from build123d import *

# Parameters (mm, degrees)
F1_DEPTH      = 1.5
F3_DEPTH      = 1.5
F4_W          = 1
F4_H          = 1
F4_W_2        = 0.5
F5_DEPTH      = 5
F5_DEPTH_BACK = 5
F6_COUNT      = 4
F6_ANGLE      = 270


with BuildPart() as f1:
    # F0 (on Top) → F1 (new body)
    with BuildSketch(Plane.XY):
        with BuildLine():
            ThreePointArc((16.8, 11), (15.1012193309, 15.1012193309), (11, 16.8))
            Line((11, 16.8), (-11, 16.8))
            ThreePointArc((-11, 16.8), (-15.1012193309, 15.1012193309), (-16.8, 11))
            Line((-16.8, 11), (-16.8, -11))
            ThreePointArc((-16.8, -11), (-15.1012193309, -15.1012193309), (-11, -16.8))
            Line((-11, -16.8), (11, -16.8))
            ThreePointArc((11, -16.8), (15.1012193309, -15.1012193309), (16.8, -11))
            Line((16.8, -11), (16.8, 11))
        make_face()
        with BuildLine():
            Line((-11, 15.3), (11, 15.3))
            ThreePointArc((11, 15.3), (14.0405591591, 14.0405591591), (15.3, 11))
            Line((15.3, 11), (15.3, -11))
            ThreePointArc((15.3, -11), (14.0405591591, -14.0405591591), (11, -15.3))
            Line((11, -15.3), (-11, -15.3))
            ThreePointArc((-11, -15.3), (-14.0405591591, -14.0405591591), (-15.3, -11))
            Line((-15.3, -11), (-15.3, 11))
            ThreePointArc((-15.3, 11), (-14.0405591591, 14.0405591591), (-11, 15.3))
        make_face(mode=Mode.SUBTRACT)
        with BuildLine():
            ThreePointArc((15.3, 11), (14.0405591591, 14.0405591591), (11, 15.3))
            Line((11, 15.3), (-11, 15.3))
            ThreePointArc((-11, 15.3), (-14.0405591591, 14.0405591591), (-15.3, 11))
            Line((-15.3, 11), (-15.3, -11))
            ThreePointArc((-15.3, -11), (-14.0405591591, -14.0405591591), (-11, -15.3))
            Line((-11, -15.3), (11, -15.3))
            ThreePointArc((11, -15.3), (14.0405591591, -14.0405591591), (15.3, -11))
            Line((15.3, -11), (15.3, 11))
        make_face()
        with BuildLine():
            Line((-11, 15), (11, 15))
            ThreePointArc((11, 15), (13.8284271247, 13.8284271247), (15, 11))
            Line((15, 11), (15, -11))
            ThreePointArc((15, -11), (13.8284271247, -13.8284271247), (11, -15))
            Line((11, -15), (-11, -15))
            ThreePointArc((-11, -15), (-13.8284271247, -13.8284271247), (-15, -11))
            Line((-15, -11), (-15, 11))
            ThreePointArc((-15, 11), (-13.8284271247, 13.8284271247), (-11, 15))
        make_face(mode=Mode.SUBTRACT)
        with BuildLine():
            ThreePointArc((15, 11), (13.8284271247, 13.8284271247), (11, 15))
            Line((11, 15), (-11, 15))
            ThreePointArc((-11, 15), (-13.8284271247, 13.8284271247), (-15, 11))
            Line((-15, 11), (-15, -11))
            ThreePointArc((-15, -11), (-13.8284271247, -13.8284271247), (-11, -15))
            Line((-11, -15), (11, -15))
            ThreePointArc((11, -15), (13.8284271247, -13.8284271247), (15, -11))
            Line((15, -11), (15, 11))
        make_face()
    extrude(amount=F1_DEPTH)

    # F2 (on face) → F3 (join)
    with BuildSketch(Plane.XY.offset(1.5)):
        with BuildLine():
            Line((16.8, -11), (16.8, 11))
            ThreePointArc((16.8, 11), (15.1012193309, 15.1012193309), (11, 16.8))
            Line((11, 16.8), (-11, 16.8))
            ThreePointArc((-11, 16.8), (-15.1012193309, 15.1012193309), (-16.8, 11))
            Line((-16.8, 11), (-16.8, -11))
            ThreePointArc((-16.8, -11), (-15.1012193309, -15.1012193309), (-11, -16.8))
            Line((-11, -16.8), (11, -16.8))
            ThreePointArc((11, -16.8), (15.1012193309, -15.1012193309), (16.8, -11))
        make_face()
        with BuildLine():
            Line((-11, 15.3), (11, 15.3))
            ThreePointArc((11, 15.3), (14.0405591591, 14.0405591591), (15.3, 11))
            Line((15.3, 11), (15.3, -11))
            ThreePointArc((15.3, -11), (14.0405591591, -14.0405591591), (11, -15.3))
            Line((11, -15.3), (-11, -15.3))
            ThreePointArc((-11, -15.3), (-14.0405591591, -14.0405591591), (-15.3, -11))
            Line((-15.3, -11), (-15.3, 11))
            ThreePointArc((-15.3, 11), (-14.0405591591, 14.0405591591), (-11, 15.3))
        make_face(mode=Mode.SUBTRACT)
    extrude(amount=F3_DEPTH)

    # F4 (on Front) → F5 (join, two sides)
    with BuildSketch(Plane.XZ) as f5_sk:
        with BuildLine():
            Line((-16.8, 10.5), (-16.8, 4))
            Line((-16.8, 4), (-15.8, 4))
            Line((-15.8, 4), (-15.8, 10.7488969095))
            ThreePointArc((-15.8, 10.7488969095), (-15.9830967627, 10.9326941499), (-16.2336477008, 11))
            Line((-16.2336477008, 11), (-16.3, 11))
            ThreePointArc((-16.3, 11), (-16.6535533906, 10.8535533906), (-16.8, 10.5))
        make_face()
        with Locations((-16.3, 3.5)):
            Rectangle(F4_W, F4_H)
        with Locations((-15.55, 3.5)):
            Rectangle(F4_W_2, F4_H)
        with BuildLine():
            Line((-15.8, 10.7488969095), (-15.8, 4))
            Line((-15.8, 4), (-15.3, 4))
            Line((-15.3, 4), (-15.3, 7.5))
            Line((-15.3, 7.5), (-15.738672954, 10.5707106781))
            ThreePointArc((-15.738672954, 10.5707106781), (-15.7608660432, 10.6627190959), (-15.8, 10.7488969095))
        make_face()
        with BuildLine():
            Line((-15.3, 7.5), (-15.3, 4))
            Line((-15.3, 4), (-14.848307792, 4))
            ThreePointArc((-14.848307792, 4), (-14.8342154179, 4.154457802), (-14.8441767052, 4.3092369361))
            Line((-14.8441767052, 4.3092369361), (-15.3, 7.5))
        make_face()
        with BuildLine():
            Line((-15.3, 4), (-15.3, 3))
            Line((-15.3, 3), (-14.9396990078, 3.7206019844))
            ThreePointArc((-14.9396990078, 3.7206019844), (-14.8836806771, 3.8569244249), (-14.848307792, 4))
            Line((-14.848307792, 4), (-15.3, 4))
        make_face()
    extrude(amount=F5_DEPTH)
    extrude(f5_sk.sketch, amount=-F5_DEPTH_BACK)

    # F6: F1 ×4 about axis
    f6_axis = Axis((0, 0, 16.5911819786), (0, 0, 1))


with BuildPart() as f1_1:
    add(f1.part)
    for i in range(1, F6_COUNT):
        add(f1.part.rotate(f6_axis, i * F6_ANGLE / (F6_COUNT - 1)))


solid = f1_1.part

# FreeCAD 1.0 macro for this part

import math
import FreeCAD as App
import Part
import Sketcher

V = App.Vector
Q = App.Units.Quantity

doc = App.newDocument("Part")
body = doc.addObject("PartDesign::Body", "Body")

sketch1 = doc.addObject("Sketcher::SketchObject", "Sketch")
body.addObject(sketch1)
sketch1.AttachmentSupport = (doc.XY_Plane, [""])
sketch1.MapMode = "FlatFace"
sketch1.addGeometry([
    Part.ArcOfCircle(Part.Circle(V(11, 11, 0), V(0, 0, 1), 5.8), math.radians(0), math.radians(90)),
    Part.LineSegment(V(11, 16.8, 0), V(-11, 16.8, 0)),
    Part.ArcOfCircle(Part.Circle(V(-11, 11, 0), V(0, 0, 1), 5.8), math.radians(90), math.radians(180)),
    Part.LineSegment(V(-16.8, 11, 0), V(-16.8, -11, 0)),
    Part.ArcOfCircle(Part.Circle(V(-11, -11, 0), V(0, 0, 1), 5.8), math.radians(180), math.radians(270)),
    Part.LineSegment(V(-11, -16.8, 0), V(11, -16.8, 0)),
    Part.ArcOfCircle(Part.Circle(V(11, -11, 0), V(0, 0, 1), 5.8), math.radians(-90), math.radians(0)),
    Part.LineSegment(V(16.8, -11, 0), V(16.8, 11, 0)),
], False)
sketch1.addConstraint([
    Sketcher.Constraint("Tangent", 0, 2, 1, 1),
    Sketcher.Constraint("Tangent", 1, 2, 2, 1),
    Sketcher.Constraint("Tangent", 2, 2, 3, 1),
    Sketcher.Constraint("Tangent", 3, 2, 4, 1),
    Sketcher.Constraint("Tangent", 4, 2, 5, 1),
    Sketcher.Constraint("Tangent", 5, 2, 6, 1),
    Sketcher.Constraint("Tangent", 6, 2, 7, 1),
    Sketcher.Constraint("Tangent", 7, 2, 0, 1),
    Sketcher.Constraint("Horizontal", 1),
    Sketcher.Constraint("Vertical", 3),
    Sketcher.Constraint("Horizontal", 5),
    Sketcher.Constraint("Vertical", 7),
    Sketcher.Constraint("Equal", 0, 2),
    Sketcher.Constraint("Equal", 2, 4),
    Sketcher.Constraint("Equal", 4, 6),
    Sketcher.Constraint("Symmetric", 0, 3, 4, 3, -1, 1),
    Sketcher.Constraint("Equal", 5, 3),
    Sketcher.Constraint("Radius", 0, Q("5.8 mm")),
    Sketcher.Constraint("DistanceX", 1, 2, 1, 1, Q("22 mm")),
])
pad1 = doc.addObject("PartDesign::Pad", "Pad")
body.addObject(pad1)
pad1.Profile = sketch1
pad1.Length = 1.5

sketch2 = doc.addObject("Sketcher::SketchObject", "Sketch001")
body.addObject(sketch2)
sketch2.AttachmentSupport = (doc.XY_Plane, [""])
sketch2.MapMode = "FlatFace"
sketch2.AttachmentOffset = App.Placement(V(0, 0, 1.5), App.Rotation())
sketch2.addGeometry([
    Part.LineSegment(V(16.8, -11, 0), V(16.8, 11, 0)),
    Part.ArcOfCircle(Part.Circle(V(11, 11, 0), V(0, 0, 1), 5.8), math.radians(0), math.radians(90)),
    Part.LineSegment(V(11, 16.8, 0), V(-11, 16.8, 0)),
    Part.ArcOfCircle(Part.Circle(V(-11, 11, 0), V(0, 0, 1), 5.8), math.radians(90), math.radians(180)),
    Part.LineSegment(V(-16.8, 11, 0), V(-16.8, -11, 0)),
    Part.ArcOfCircle(Part.Circle(V(-11, -11, 0), V(0, 0, 1), 5.8), math.radians(180), math.radians(270)),
    Part.LineSegment(V(-11, -16.8, 0), V(11, -16.8, 0)),
    Part.ArcOfCircle(Part.Circle(V(11, -11, 0), V(0, 0, 1), 5.8), math.radians(-90), math.radians(0)),
    Part.ArcOfCircle(Part.Circle(V(-11, 11, 0), V(0, 0, 1), 4.3), math.radians(90), math.radians(180)),
    Part.LineSegment(V(-11, 15.3, 0), V(11, 15.3, 0)),
    Part.ArcOfCircle(Part.Circle(V(11, 11, 0), V(0, 0, 1), 4.3), math.radians(0), math.radians(90)),
    Part.LineSegment(V(15.3, 11, 0), V(15.3, -11, 0)),
    Part.ArcOfCircle(Part.Circle(V(11, -11, 0), V(0, 0, 1), 4.3), math.radians(-90), math.radians(0)),
    Part.LineSegment(V(11, -15.3, 0), V(-11, -15.3, 0)),
    Part.ArcOfCircle(Part.Circle(V(-11, -11, 0), V(0, 0, 1), 4.3), math.radians(180), math.radians(270)),
    Part.LineSegment(V(-15.3, -11, 0), V(-15.3, 11, 0)),
], False)
sketch2.addConstraint([
    Sketcher.Constraint("Tangent", 0, 2, 1, 1),
    Sketcher.Constraint("Tangent", 1, 2, 2, 1),
    Sketcher.Constraint("Tangent", 2, 2, 3, 1),
    Sketcher.Constraint("Tangent", 3, 2, 4, 1),
    Sketcher.Constraint("Tangent", 4, 2, 5, 1),
    Sketcher.Constraint("Tangent", 5, 2, 6, 1),
    Sketcher.Constraint("Tangent", 6, 2, 7, 1),
    Sketcher.Constraint("Tangent", 7, 2, 0, 1),
    Sketcher.Constraint("Tangent", 8, 1, 9, 1),
    Sketcher.Constraint("Tangent", 9, 2, 10, 2),
    Sketcher.Constraint("Tangent", 10, 1, 11, 1),
    Sketcher.Constraint("Tangent", 11, 2, 12, 2),
    Sketcher.Constraint("Tangent", 12, 1, 13, 1),
    Sketcher.Constraint("Tangent", 13, 2, 14, 2),
    Sketcher.Constraint("Tangent", 14, 1, 15, 1),
    Sketcher.Constraint("Tangent", 15, 2, 8, 2),
    Sketcher.Constraint("Vertical", 0),
    Sketcher.Constraint("Horizontal", 2),
    Sketcher.Constraint("Vertical", 4),
    Sketcher.Constraint("Horizontal", 6),
    Sketcher.Constraint("Horizontal", 9),
    Sketcher.Constraint("Vertical", 11),
    Sketcher.Constraint("Horizontal", 13),
    Sketcher.Constraint("Vertical", 15),
    Sketcher.Constraint("Coincident", 8, 3, 3, 3),
    Sketcher.Constraint("Coincident", 10, 3, 1, 3),
    Sketcher.Constraint("Coincident", 12, 3, 7, 3),
    Sketcher.Constraint("Equal", 1, 3),
    Sketcher.Constraint("Equal", 3, 5),
    Sketcher.Constraint("Equal", 5, 7),
    Sketcher.Constraint("Equal", 12, 14),
    Sketcher.Constraint("Symmetric", 1, 3, 5, 3, -1, 1),
    Sketcher.Constraint("Equal", 13, 0),
    Sketcher.Constraint("Radius", 1, Q("5.8 mm")),
    Sketcher.Constraint("Radius", 8, Q("4.3 mm")),
    Sketcher.Constraint("DistanceX", 2, 2, 2, 1, Q("22 mm")),
])
pad2 = doc.addObject("PartDesign::Pad", "Pad001")
body.addObject(pad2)
pad2.Profile = sketch2
pad2.Length = 1.5

sketch3 = doc.addObject("Sketcher::SketchObject", "Sketch002")
body.addObject(sketch3)
sketch3.AttachmentSupport = (doc.XZ_Plane, [""])
sketch3.MapMode = "FlatFace"
sketch3.addGeometry([
    Part.LineSegment(V(-16.8, 10.5, 0), V(-16.8, 3, 0)),
    Part.LineSegment(V(-16.8, 3, 0), V(-15.3, 3, 0)),
    Part.LineSegment(V(-15.3, 3, 0), V(-14.939699, 3.720602, 0)),
    Part.ArcOfCircle(Part.Circle(V(-15.834126, 4.167816, 0), V(0, 0, 1), 1), math.radians(-26.565051), math.radians(-9.660837)),
    Part.ArcOfCircle(Part.Circle(V(-15.834126, 4.167816, 0), V(0, 0, 1), 1), math.radians(-9.660836), math.radians(8.130102)),
    Part.LineSegment(V(-14.844177, 4.309237, 0), V(-15.3, 7.5, 0)),
    Part.LineSegment(V(-15.3, 7.5, 0), V(-15.738673, 10.570711, 0)),
    Part.ArcOfCircle(Part.Circle(V(-16.233648, 10.5, 0), V(0, 0, 1), 0.5), math.radians(8.130102), math.radians(29.854147)),
    Part.ArcOfCircle(Part.Circle(V(-16.233648, 10.5, 0), V(0, 0, 1), 0.5), math.radians(29.854147), math.radians(90)),
    Part.LineSegment(V(-16.233648, 11, 0), V(-16.3, 11, 0)),
    Part.ArcOfCircle(Part.Circle(V(-16.3, 10.5, 0), V(0, 0, 1), 0.5), math.radians(90), math.radians(180)),
], False)
sketch3.addConstraint([
    Sketcher.Constraint("Coincident", 0, 2, 1, 1),
    Sketcher.Constraint("Coincident", 1, 2, 2, 1),
    Sketcher.Constraint("Tangent", 2, 2, 3, 1),
    Sketcher.Constraint("Tangent", 3, 2, 4, 1),
    Sketcher.Constraint("Tangent", 4, 2, 5, 1),
    Sketcher.Constraint("Coincident", 5, 2, 6, 1),
    Sketcher.Constraint("Tangent", 6, 2, 7, 1),
    Sketcher.Constraint("Tangent", 7, 2, 8, 1),
    Sketcher.Constraint("Tangent", 8, 2, 9, 1),
    Sketcher.Constraint("Tangent", 9, 2, 10, 1),
    Sketcher.Constraint("Tangent", 10, 2, 0, 1),
    Sketcher.Constraint("Vertical", 0),
    Sketcher.Constraint("Horizontal", 1),
    Sketcher.Constraint("Horizontal", 9),
    Sketcher.Constraint("Equal", 3, 4),
    Sketcher.Constraint("Equal", 7, 8),
    Sketcher.Constraint("Equal", 8, 10),
    Sketcher.Constraint("Parallel", 5, 6),
    Sketcher.Constraint("Vertical", 1, 2, 5, 2),
    Sketcher.Constraint("Radius", 3, Q("1 mm")),
    Sketcher.Constraint("Radius", 7, Q("0.5 mm")),
    Sketcher.Constraint("DistanceX", 1, 1, 1, 2, Q("1.5 mm")),
    Sketcher.Constraint("DistanceY", 0, 2, 0, 1, Q("7.5 mm")),
    Sketcher.Constraint("DistanceY", -1, 1, 0, 2, Q("3 mm")),
    Sketcher.Constraint("DistanceY", -1, 1, 3, 2, Q("4 mm")),
    Sketcher.Constraint("DistanceY", 5, 2, 7, 3, Q("3 mm")),
    Sketcher.Constraint("DistanceX", 10, 3, -1, 1, Q("16.3 mm")),
    Sketcher.Constraint("DistanceX", 7, 2, -1, 1, Q("15.8 mm")),
    Sketcher.Constraint("DistanceX", 2, 2, -1, 1, Q("14.939699 mm")),
    Sketcher.Constraint("DistanceY", -1, 1, 2, 2, Q("3.720602 mm")),
])
pad3 = doc.addObject("PartDesign::Pad", "Pad002")
body.addObject(pad3)
pad3.Profile = sketch3
pad3.Type = "TwoLengths"
pad3.Length = 5
pad3.Length2 = 5
body2 = doc.addObject("PartDesign::Body", "Body001")
doc.recompute()

body2.BaseFeature = body
doc.recompute()

body3 = doc.addObject("PartDesign::Body", "Body002")
body3.BaseFeature = body
body3.Placement = App.Placement(V(0, 0, 0), App.Rotation(V(0, 0, 1), 90))
boolean = doc.addObject("PartDesign::Boolean", "Boolean")
body2.addObject(boolean)
boolean.Type = "Fuse"
boolean.addObjects([body3])
doc.recompute()

body4 = doc.addObject("PartDesign::Body", "Body003")
body4.BaseFeature = body
body4.Placement = App.Placement(V(0, 0, 0), App.Rotation(V(0, 0, 1), 180))
boolean2 = doc.addObject("PartDesign::Boolean", "Boolean001")
body2.addObject(boolean2)
boolean2.Type = "Fuse"
boolean2.addObjects([body4])
doc.recompute()

body.Placement = App.Placement(V(0, 0, 0), App.Rotation(V(0, 0, 1), 270))
boolean3 = doc.addObject("PartDesign::Boolean", "Boolean002")
body2.addObject(boolean3)
boolean3.Type = "Fuse"
boolean3.addObjects([body])

doc.recompute()
